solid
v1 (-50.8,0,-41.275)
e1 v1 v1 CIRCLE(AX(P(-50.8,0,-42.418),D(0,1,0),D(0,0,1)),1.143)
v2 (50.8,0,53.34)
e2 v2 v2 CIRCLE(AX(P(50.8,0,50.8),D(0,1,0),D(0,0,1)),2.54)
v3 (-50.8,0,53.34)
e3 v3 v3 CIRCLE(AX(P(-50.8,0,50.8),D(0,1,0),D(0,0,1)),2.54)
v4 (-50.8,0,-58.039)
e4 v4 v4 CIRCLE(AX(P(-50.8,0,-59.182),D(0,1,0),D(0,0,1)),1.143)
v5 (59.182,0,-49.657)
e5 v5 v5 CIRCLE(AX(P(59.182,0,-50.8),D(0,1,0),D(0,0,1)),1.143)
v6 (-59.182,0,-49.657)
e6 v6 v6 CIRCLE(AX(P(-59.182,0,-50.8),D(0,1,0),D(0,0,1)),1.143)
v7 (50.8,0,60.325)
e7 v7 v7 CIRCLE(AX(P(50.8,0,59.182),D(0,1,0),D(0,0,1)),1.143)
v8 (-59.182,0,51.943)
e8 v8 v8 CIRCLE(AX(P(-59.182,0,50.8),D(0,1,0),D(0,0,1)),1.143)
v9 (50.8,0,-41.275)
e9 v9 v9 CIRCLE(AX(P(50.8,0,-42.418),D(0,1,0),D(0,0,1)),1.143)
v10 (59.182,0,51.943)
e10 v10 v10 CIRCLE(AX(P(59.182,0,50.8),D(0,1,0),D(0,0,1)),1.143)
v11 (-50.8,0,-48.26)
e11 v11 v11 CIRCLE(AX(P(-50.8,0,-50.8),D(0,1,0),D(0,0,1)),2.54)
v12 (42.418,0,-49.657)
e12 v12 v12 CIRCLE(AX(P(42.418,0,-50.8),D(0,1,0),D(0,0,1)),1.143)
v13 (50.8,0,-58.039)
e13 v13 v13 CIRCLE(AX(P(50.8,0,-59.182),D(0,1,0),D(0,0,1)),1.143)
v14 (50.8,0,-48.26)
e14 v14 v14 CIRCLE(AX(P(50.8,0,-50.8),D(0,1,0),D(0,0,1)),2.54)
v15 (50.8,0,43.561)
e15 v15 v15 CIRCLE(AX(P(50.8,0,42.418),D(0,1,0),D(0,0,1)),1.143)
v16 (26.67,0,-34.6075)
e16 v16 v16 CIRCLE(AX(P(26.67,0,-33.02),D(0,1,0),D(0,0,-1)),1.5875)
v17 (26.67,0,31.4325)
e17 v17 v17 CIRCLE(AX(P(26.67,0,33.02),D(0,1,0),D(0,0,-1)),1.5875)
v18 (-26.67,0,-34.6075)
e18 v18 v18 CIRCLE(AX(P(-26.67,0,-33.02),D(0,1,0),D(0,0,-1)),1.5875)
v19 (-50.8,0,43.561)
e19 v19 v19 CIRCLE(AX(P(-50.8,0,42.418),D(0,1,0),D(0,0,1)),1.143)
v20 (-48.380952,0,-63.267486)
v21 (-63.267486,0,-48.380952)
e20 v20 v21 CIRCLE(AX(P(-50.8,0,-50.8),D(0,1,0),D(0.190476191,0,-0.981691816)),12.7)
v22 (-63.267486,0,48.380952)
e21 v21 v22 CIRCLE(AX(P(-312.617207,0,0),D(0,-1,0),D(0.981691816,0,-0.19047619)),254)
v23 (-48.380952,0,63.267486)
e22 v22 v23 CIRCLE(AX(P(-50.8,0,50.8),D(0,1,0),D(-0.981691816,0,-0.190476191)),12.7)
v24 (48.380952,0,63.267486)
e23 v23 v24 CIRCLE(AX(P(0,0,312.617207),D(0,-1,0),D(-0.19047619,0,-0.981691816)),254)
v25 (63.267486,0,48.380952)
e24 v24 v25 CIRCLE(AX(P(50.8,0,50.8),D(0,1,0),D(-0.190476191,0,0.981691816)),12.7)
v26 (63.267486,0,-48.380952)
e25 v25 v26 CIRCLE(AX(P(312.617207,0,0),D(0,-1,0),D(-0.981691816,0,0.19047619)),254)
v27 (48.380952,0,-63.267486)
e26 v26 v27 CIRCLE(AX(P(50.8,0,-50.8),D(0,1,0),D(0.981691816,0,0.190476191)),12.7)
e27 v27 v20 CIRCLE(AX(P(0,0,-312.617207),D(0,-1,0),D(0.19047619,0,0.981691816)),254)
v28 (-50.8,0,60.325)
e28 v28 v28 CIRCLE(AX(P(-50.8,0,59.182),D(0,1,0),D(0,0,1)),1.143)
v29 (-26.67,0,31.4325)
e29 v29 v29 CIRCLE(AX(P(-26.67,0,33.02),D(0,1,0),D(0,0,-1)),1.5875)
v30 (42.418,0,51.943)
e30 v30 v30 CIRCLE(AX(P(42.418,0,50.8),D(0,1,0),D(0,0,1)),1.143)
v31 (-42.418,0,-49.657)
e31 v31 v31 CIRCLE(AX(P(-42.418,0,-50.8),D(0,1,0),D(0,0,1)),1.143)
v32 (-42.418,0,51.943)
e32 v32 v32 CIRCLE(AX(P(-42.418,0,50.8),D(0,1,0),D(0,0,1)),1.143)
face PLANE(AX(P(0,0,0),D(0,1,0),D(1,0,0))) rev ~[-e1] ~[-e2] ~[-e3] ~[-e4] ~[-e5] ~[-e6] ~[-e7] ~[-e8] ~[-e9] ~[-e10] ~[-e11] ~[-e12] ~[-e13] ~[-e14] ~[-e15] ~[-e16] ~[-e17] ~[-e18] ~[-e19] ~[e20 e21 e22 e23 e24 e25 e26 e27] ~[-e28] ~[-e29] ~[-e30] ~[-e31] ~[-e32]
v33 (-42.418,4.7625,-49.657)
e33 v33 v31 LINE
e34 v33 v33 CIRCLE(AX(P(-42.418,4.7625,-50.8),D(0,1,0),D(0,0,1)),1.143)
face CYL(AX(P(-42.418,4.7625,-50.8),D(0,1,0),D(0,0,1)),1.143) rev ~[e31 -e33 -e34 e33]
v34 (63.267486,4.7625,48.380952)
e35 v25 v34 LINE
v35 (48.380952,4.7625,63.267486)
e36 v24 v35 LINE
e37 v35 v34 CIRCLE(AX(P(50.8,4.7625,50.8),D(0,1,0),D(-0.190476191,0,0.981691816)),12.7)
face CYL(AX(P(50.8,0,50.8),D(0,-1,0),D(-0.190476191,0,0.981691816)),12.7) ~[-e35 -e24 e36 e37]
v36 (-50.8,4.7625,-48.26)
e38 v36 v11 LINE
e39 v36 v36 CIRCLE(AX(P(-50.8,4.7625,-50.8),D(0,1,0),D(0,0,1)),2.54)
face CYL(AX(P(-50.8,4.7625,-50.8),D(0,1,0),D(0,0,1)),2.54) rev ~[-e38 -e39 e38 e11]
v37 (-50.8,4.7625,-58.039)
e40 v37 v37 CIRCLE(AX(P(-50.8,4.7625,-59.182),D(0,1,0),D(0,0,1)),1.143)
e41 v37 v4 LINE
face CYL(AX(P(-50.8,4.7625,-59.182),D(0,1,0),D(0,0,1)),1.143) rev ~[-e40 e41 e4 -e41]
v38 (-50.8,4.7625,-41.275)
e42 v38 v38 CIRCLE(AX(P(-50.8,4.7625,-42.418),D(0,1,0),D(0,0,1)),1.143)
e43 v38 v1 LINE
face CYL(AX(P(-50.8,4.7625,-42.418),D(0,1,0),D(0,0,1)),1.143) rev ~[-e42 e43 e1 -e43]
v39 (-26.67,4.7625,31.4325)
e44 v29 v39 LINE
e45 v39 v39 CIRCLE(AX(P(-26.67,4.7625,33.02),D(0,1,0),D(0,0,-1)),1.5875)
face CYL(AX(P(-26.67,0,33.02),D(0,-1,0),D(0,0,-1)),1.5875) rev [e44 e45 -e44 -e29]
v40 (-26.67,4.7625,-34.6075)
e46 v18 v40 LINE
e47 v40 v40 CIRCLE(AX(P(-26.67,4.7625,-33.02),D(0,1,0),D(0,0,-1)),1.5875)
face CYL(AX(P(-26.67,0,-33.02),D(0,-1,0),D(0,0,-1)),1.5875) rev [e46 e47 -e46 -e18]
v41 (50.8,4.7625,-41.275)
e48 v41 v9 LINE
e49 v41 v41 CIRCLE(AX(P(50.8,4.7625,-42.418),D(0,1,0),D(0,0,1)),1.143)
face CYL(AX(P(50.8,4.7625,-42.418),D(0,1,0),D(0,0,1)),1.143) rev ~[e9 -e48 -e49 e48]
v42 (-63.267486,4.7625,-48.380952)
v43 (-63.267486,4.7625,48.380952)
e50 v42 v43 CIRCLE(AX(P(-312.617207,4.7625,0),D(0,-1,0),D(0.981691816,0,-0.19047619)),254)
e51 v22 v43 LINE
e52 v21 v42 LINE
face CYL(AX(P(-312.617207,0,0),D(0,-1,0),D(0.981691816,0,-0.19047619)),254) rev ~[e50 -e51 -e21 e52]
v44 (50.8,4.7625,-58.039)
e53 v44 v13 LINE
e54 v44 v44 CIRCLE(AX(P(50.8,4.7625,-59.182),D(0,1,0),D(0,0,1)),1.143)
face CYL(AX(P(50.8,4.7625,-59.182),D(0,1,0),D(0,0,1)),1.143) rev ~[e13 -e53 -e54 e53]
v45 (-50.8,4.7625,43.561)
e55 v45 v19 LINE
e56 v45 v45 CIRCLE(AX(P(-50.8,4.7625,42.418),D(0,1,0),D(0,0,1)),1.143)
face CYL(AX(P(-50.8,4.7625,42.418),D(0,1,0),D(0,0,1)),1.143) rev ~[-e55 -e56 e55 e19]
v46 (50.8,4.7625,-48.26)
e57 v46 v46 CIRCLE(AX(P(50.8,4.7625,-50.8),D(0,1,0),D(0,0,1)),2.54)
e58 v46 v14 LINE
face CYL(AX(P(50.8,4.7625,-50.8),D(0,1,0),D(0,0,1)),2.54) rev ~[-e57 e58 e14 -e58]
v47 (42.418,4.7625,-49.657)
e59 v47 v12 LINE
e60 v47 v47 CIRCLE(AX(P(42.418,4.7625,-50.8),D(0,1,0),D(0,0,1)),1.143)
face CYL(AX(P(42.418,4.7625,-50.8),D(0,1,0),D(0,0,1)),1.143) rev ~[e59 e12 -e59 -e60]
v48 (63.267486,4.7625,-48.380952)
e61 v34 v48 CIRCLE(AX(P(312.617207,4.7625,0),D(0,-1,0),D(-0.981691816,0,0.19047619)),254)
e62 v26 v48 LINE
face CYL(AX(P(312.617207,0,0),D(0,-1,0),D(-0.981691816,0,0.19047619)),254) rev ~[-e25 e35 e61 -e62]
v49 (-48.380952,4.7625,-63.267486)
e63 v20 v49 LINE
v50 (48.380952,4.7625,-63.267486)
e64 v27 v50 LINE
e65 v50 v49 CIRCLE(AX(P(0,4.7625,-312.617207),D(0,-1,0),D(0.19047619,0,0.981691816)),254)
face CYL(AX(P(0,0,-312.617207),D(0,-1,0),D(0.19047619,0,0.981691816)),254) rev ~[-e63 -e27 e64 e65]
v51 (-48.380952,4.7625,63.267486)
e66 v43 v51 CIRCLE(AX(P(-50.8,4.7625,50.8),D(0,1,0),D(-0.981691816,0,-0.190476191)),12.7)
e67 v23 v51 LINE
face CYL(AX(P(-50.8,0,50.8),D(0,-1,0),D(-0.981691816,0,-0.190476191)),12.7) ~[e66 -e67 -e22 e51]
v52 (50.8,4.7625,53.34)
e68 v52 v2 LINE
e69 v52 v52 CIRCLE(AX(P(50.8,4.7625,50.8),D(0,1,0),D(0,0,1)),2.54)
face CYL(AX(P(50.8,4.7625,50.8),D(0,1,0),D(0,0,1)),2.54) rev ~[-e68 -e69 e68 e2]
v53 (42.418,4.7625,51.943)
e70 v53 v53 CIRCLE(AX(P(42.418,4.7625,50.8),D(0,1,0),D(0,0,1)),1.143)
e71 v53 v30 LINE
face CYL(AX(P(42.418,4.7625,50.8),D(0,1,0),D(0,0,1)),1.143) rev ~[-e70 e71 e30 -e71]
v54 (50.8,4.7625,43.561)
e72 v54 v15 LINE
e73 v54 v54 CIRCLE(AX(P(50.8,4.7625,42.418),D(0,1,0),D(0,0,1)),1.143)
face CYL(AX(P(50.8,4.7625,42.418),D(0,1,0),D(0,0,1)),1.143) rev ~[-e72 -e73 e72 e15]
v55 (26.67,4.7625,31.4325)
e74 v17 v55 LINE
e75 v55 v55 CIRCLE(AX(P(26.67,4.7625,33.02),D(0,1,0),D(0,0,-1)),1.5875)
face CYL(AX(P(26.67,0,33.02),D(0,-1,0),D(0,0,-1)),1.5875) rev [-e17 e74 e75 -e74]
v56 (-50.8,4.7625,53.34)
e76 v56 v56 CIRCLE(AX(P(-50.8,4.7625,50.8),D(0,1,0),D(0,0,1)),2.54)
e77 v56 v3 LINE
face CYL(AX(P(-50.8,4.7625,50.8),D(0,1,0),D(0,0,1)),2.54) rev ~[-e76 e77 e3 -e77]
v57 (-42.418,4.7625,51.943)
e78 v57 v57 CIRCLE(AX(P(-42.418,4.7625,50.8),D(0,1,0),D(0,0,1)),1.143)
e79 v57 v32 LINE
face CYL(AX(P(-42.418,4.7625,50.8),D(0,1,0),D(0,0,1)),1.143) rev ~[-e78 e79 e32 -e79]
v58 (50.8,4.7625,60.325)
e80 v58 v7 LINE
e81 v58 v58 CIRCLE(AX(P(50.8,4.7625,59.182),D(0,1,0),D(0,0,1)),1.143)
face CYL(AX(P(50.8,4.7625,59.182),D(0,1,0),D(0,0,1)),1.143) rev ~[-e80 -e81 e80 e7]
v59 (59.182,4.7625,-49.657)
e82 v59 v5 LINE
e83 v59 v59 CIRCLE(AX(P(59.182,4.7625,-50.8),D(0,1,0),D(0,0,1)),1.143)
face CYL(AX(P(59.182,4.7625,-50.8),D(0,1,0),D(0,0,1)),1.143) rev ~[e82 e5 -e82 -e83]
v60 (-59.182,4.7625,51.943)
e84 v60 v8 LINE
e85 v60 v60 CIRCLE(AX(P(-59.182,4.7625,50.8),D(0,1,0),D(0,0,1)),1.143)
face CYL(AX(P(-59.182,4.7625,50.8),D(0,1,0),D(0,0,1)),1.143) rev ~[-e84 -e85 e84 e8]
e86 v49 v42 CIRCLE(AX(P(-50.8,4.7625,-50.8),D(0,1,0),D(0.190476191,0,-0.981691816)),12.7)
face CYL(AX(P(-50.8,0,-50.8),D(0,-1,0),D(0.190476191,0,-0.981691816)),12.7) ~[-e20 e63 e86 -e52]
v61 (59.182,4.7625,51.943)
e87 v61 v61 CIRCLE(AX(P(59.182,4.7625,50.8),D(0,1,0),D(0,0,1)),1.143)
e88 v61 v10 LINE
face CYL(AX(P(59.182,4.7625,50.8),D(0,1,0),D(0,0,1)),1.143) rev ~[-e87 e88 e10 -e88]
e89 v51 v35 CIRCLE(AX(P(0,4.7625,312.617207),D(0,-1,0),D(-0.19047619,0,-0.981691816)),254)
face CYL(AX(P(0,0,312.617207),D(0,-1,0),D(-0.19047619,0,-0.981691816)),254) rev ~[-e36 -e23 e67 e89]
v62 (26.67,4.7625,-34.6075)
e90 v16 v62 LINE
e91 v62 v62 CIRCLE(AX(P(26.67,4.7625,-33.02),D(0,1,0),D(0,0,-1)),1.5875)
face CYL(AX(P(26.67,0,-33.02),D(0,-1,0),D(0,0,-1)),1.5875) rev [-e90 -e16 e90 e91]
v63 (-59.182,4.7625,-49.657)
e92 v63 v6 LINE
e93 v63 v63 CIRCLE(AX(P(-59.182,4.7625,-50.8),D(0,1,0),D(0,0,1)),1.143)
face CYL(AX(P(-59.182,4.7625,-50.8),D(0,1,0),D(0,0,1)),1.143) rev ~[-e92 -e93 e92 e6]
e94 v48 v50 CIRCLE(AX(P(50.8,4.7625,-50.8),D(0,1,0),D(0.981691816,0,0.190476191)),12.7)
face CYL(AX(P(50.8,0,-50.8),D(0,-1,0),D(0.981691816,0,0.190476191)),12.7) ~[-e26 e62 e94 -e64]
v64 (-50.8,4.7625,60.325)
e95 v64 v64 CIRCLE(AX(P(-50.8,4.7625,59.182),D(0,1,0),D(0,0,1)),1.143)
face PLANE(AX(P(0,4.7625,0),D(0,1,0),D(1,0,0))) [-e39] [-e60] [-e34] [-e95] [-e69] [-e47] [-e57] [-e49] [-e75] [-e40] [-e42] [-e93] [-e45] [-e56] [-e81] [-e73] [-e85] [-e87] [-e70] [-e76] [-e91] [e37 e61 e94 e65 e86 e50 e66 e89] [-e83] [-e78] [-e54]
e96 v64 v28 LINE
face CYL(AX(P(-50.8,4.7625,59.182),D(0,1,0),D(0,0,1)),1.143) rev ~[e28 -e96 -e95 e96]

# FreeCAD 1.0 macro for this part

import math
import FreeCAD as App
import Part
import Sketcher
from FreeCAD import Vector
Q = App.Units.Quantity

doc = App.newDocument("Part")
body = doc.addObject("PartDesign::Body", "Body")

sketch1 = body.newObject("Sketcher::SketchObject", "Sketch")
sketch1.AttachmentSupport = (doc.getObject("XZ_Plane"), [""])
sketch1.MapMode = "FlatFace"
sketch1.addGeometry(Part.ArcOfCircle(Part.Circle(Vector(-50.8, -50.8, 0), Vector(0, 0, 1), 12.7), math.radians(169), math.radians(281)), False)
sketch1.addGeometry(Part.ArcOfCircle(Part.Circle(Vector(-312.6, 0, 0), Vector(0, 0, 1), 254), math.radians(-11), math.radians(11)), False)
sketch1.addGeometry(Part.ArcOfCircle(Part.Circle(Vector(-50.8, 50.8, 0), Vector(0, 0, 1), 12.7), math.radians(79), math.radians(191)), False)
sketch1.addGeometry(Part.ArcOfCircle(Part.Circle(Vector(0, 312.6, 0), Vector(0, 0, 1), 254), math.radians(-101), math.radians(-79)), False)
sketch1.addGeometry(Part.ArcOfCircle(Part.Circle(Vector(50.8, 50.8, 0), Vector(0, 0, 1), 12.7), math.radians(-11), math.radians(101)), False)
sketch1.addGeometry(Part.ArcOfCircle(Part.Circle(Vector(312.6, 0, 0), Vector(0, 0, 1), 254), math.radians(169), math.radians(191)), False)
sketch1.addGeometry(Part.ArcOfCircle(Part.Circle(Vector(50.8, -50.8, 0), Vector(0, 0, 1), 12.7), math.radians(-101), math.radians(11)), False)
sketch1.addGeometry(Part.ArcOfCircle(Part.Circle(Vector(0, -312.6, 0), Vector(0, 0, 1), 254), math.radians(79), math.radians(101)), False)
sketch1.addGeometry(Part.Circle(Vector(-26.7, 33, 0), Vector(0, 0, 1), 1.6), False)
sketch1.addGeometry(Part.Circle(Vector(26.7, 33, 0), Vector(0, 0, 1), 1.6), False)
sketch1.addGeometry(Part.Circle(Vector(-26.7, -33, 0), Vector(0, 0, 1), 1.6), False)
sketch1.addGeometry(Part.Circle(Vector(26.7, -33, 0), Vector(0, 0, 1), 1.6), False)
sketch1.addConstraint(Sketcher.Constraint("Tangent", 0, 1, 1, 1))
sketch1.addConstraint(Sketcher.Constraint("Tangent", 1, 2, 2, 2))
sketch1.addConstraint(Sketcher.Constraint("Tangent", 2, 1, 3, 1))
sketch1.addConstraint(Sketcher.Constraint("Tangent", 3, 2, 4, 2))
sketch1.addConstraint(Sketcher.Constraint("Tangent", 4, 1, 5, 1))
sketch1.addConstraint(Sketcher.Constraint("Tangent", 5, 2, 6, 2))
sketch1.addConstraint(Sketcher.Constraint("Tangent", 6, 1, 7, 1))
sketch1.addConstraint(Sketcher.Constraint("Tangent", 7, 2, 0, 2))
sketch1.addConstraint(Sketcher.Constraint("Equal", 0, 2))
sketch1.addConstraint(Sketcher.Constraint("Equal", 1, 3))
sketch1.addConstraint(Sketcher.Constraint("Equal", 2, 4))
sketch1.addConstraint(Sketcher.Constraint("Equal", 3, 5))
sketch1.addConstraint(Sketcher.Constraint("Equal", 4, 6))
sketch1.addConstraint(Sketcher.Constraint("Equal", 5, 7))
sketch1.addConstraint(Sketcher.Constraint("Equal", 8, 9))
sketch1.addConstraint(Sketcher.Constraint("Equal", 9, 10))
sketch1.addConstraint(Sketcher.Constraint("Equal", 10, 11))
sketch1.addConstraint(Sketcher.Constraint("Symmetric", 0, 3, 4, 3, -1, 1))
sketch1.addConstraint(Sketcher.Constraint("Symmetric", 2, 3, 6, 3, -1, 1))
sketch1.addConstraint(Sketcher.Constraint("Symmetric", 9, 3, 10, 3, -1, 1))
sketch1.addConstraint(Sketcher.Constraint("Symmetric", 8, 3, 11, 3, -1, 1))
sketch1.addConstraint(Sketcher.Constraint("Symmetric", 2, 3, 4, 3, -2))
sketch1.addConstraint(Sketcher.Constraint("Symmetric", 8, 3, 9, 3, -2))
sketch1.addConstraint(Sketcher.Constraint("Radius", 1, Q("10 in")))
sketch1.addConstraint(Sketcher.Constraint("Radius", 0, Q("0.5 in")))
sketch1.addConstraint(Sketcher.Constraint("Diameter", 8, Q("0.125 in")))
sketch1.addConstraint(Sketcher.Constraint("DistanceX", 0, 3, -1, 1, Q("2 in")))
sketch1.addConstraint(Sketcher.Constraint("DistanceY", 0, 3, -1, 1, Q("2 in")))
sketch1.addConstraint(Sketcher.Constraint("DistanceY", -1, 1, 8, 3, Q("1.3 in")))
sketch1.addConstraint(Sketcher.Constraint("DistanceX", 8, 3, 9, 3, Q("2.1 in")))
pad1 = body.newObject("PartDesign::Pad", "Pad")
pad1.Profile = sketch1
pad1.Length = Q("0.1875 in")
pad1.Reversed = True

sketch2 = body.newObject("Sketcher::SketchObject", "Sketch001")
sketch2.AttachmentSupport = (doc.getObject("XZ_Plane"), [""])
sketch2.MapMode = "FlatFace"
sketch2.AttachmentOffset = App.Placement(Vector(0, 0, -0.1875 * 25.4), App.Rotation())
sketch2.addGeometry(Part.Circle(Vector(-50.8, -50.8, 0), Vector(0, 0, 1), 2.5), False)
sketch2.addGeometry(Part.Circle(Vector(-42.4, -50.8, 0), Vector(0, 0, 1), 1.1), False)
sketch2.addGeometry(Part.Circle(Vector(-50.8, -42.4, 0), Vector(0, 0, 1), 1.1), False)
sketch2.addGeometry(Part.Circle(Vector(-59.2, -50.8, 0), Vector(0, 0, 1), 1.1), False)
sketch2.addGeometry(Part.Circle(Vector(-50.8, -59.2, 0), Vector(0, 0, 1), 1.1), False)
sketch2.addGeometry(Part.Circle(Vector(50.8, -50.8, 0), Vector(0, 0, 1), 2.5), False)
sketch2.addGeometry(Part.Circle(Vector(59.2, -50.8, 0), Vector(0, 0, 1), 1.1), False)
sketch2.addGeometry(Part.Circle(Vector(50.8, -42.4, 0), Vector(0, 0, 1), 1.1), False)
sketch2.addGeometry(Part.Circle(Vector(42.4, -50.8, 0), Vector(0, 0, 1), 1.1), False)
sketch2.addGeometry(Part.Circle(Vector(50.8, -59.2, 0), Vector(0, 0, 1), 1.1), False)
sketch2.addGeometry(Part.Circle(Vector(50.8, 50.8, 0), Vector(0, 0, 1), 2.5), False)
sketch2.addGeometry(Part.Circle(Vector(59.2, 50.8, 0), Vector(0, 0, 1), 1.1), False)
sketch2.addGeometry(Part.Circle(Vector(50.8, 59.2, 0), Vector(0, 0, 1), 1.1), False)
sketch2.addGeometry(Part.Circle(Vector(42.4, 50.8, 0), Vector(0, 0, 1), 1.1), False)
sketch2.addGeometry(Part.Circle(Vector(50.8, 42.4, 0), Vector(0, 0, 1), 1.1), False)
sketch2.addGeometry(Part.Circle(Vector(-50.8, 50.8, 0), Vector(0, 0, 1), 2.5), False)
sketch2.addGeometry(Part.Circle(Vector(-42.4, 50.8, 0), Vector(0, 0, 1), 1.1), False)
sketch2.addGeometry(Part.Circle(Vector(-50.8, 59.2, 0), Vector(0, 0, 1), 1.1), False)
sketch2.addGeometry(Part.Circle(Vector(-59.2, 50.8, 0), Vector(0, 0, 1), 1.1), False)
sketch2.addGeometry(Part.Circle(Vector(-50.8, 42.4, 0), Vector(0, 0, 1), 1.1), False)
sketch2.addConstraint(Sketcher.Constraint("Equal", 1, 2))
sketch2.addConstraint(Sketcher.Constraint("Equal", 2, 3))
sketch2.addConstraint(Sketcher.Constraint("Equal", 3, 4))
sketch2.addConstraint(Sketcher.Constraint("Equal", 0, 5))
sketch2.addConstraint(Sketcher.Constraint("Equal", 4, 6))
sketch2.addConstraint(Sketcher.Constraint("Equal", 6, 7))
sketch2.addConstraint(Sketcher.Constraint("Equal", 7, 8))
sketch2.addConstraint(Sketcher.Constraint("Equal", 8, 9))
sketch2.addConstraint(Sketcher.Constraint("Equal", 5, 10))
sketch2.addConstraint(Sketcher.Constraint("Equal", 9, 11))
sketch2.addConstraint(Sketcher.Constraint("Equal", 11, 12))
sketch2.addConstraint(Sketcher.Constraint("Equal", 12, 13))
sketch2.addConstraint(Sketcher.Constraint("Equal", 13, 14))
sketch2.addConstraint(Sketcher.Constraint("Equal", 10, 15))
sketch2.addConstraint(Sketcher.Constraint("Equal", 14, 16))
sketch2.addConstraint(Sketcher.Constraint("Equal", 16, 17))
sketch2.addConstraint(Sketcher.Constraint("Equal", 17, 18))
sketch2.addConstraint(Sketcher.Constraint("Equal", 18, 19))
sketch2.addConstraint(Sketcher.Constraint("Symmetric", 0, 3, 10, 3, -1, 1))
sketch2.addConstraint(Sketcher.Constraint("Symmetric", 3, 3, 11, 3, -1, 1))
sketch2.addConstraint(Sketcher.Constraint("Symmetric", 4, 3, 12, 3, -1, 1))
sketch2.addConstraint(Sketcher.Constraint("Symmetric", 1, 3, 13, 3, -1, 1))
sketch2.addConstraint(Sketcher.Constraint("Symmetric", 2, 3, 14, 3, -1, 1))
sketch2.addConstraint(Sketcher.Constraint("Symmetric", 5, 3, 15, 3, -1, 1))
sketch2.addConstraint(Sketcher.Constraint("Symmetric", 8, 3, 16, 3, -1, 1))
sketch2.addConstraint(Sketcher.Constraint("Symmetric", 9, 3, 17, 3, -1, 1))
sketch2.addConstraint(Sketcher.Constraint("Symmetric", 6, 3, 18, 3, -1, 1))
sketch2.addConstraint(Sketcher.Constraint("Symmetric", 7, 3, 19, 3, -1, 1))
sketch2.addConstraint(Sketcher.Constraint("Symmetric", 0, 3, 5, 3, -2))
sketch2.addConstraint(Sketcher.Constraint("Symmetric", 3, 3, 6, 3, -2))
sketch2.addConstraint(Sketcher.Constraint("Symmetric", 2, 3, 7, 3, -2))
sketch2.addConstraint(Sketcher.Constraint("Symmetric", 1, 3, 8, 3, -2))
sketch2.addConstraint(Sketcher.Constraint("Symmetric", 4, 3, 9, 3, -2))
sketch2.addConstraint(Sketcher.Constraint("Horizontal", 0, 3, 1, 3))
sketch2.addConstraint(Sketcher.Constraint("Horizontal", 1, 3, 3, 3))
sketch2.addConstraint(Sketcher.Constraint("Vertical", 0, 3, 2, 3))
sketch2.addConstraint(Sketcher.Constraint("Vertical", 2, 3, 4, 3))
sketch2.addConstraint(Sketcher.Constraint("Diameter", 0, Q("0.2 in")))
sketch2.addConstraint(Sketcher.Constraint("Diameter", 1, Q("0.09 in")))
sketch2.addConstraint(Sketcher.Constraint("DistanceX", 0, 3, -1, 1, Q("2 in")))
sketch2.addConstraint(Sketcher.Constraint("DistanceY", 0, 3, -1, 1, Q("2 in")))
sketch2.addConstraint(Sketcher.Constraint("DistanceX", 1, 3, 6, 3, Q("4 in")))
sketch2.addConstraint(Sketcher.Constraint("DistanceY", 7, 3, 12, 3, Q("4 in")))
sketch2.addConstraint(Sketcher.Constraint("DistanceX", 1, 3, -1, 1, Q("1.67 in")))
sketch2.addConstraint(Sketcher.Constraint("DistanceY", 2, 3, -1, 1, Q("1.67 in")))
pocket1 = body.newObject("PartDesign::Pocket", "Pocket")
pocket1.Profile = sketch2
pocket1.Type = "ThroughAll"
pocket1.Reversed = True

doc.recompute()
